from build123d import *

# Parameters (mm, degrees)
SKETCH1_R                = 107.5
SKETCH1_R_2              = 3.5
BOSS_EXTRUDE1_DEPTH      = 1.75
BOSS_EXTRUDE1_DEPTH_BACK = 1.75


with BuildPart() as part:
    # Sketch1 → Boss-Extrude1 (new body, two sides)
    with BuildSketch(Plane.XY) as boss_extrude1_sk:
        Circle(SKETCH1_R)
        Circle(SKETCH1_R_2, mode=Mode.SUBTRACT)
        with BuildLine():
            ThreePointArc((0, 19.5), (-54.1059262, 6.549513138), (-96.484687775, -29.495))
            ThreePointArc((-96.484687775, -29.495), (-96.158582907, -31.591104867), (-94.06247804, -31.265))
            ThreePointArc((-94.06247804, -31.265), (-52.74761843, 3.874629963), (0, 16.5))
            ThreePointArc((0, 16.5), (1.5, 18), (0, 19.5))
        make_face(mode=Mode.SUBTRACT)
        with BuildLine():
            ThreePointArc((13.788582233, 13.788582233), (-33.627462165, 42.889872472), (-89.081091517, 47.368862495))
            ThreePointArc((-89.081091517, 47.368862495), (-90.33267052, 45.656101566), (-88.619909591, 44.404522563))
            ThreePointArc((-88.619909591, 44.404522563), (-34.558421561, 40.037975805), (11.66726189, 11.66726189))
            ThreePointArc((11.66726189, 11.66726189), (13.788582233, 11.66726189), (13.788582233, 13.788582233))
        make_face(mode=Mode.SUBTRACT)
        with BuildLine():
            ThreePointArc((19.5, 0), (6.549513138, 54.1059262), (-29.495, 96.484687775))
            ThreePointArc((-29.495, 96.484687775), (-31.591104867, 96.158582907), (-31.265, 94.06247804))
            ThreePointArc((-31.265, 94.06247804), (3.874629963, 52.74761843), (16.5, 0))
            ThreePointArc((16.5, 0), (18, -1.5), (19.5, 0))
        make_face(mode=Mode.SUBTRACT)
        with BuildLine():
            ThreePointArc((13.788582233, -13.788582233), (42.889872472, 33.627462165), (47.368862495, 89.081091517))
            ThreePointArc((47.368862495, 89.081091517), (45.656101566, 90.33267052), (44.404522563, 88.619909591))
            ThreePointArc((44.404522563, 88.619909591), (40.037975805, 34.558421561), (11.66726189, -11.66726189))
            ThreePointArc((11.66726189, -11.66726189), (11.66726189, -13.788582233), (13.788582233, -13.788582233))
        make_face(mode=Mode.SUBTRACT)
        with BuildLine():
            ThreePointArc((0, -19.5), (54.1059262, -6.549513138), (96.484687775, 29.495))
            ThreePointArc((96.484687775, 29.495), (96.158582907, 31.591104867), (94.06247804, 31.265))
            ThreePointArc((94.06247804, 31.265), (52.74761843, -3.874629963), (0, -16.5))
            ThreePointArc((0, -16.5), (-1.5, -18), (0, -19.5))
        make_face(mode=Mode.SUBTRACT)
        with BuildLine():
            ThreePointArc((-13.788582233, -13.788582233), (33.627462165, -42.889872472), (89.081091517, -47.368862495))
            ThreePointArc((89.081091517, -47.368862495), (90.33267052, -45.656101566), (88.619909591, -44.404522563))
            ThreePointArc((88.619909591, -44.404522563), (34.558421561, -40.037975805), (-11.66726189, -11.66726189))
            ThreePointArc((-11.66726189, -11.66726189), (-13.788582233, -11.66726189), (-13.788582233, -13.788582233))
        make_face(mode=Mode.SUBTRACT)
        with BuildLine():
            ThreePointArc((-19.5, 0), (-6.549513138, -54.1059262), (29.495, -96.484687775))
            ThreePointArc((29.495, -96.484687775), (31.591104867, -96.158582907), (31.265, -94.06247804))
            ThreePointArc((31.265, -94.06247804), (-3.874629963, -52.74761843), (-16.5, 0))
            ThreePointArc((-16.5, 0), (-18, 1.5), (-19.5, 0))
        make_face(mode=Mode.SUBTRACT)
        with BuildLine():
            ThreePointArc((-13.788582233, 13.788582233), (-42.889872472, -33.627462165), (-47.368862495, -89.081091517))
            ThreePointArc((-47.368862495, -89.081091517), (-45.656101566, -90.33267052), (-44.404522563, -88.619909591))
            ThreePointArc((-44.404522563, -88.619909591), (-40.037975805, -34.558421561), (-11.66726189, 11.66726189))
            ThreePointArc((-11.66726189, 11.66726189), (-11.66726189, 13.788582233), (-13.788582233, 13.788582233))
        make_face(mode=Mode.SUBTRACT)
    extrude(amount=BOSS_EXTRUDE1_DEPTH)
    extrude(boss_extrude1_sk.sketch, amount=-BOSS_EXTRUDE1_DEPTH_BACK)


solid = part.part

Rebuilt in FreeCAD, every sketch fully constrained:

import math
import FreeCAD as App
import Part
import Sketcher
Q = App.Units.Quantity

doc = App.newDocument("Part")
body = doc.addObject("PartDesign::Body", "Body")

# Sketch on XY plane
sketch1 = doc.addObject("Sketcher::SketchObject", "Sketch")
body.addObject(sketch1)
sketch1.AttachmentSupport = (doc.XY_Plane, [""])
sketch1.MapMode = "FlatFace"
sketch1.addGeometry([
    Part.Circle(App.Vector(0, 0, 0), App.Vector(0, 0, 1), 107.5),  # 0
    Part.ArcOfCircle(Part.Circle(App.Vector(70.7, -70.7, 0), App.Vector(0, 0, 1), 119.5), math.radians(135), math.radians(189)),  # 1
    Part.ArcOfCircle(Part.Circle(App.Vector(-12.7, 12.7, 0), App.Vector(0, 0, 1), 1.5), math.radians(-45), math.radians(135)),  # 2
    Part.ArcOfCircle(Part.Circle(App.Vector(70.7, -70.7, 0), App.Vector(0, 0, 1), 116.5), math.radians(135), math.radians(189)),  # 3
    Part.ArcOfCircle(Part.Circle(App.Vector(-45.9, -88.9, 0), App.Vector(0, 0, 1), 1.5), math.radians(-171), math.radians(9)),  # 4
    Part.ArcOfCircle(Part.Circle(App.Vector(0, -100, 0), App.Vector(0, 0, 1), 119.5), math.radians(90), math.radians(144)),  # 5
    Part.ArcOfCircle(Part.Circle(App.Vector(0, 18, 0), App.Vector(0, 0, 1), 1.5), math.radians(-90), math.radians(90)),  # 6
    Part.ArcOfCircle(Part.Circle(App.Vector(0, -100, 0), App.Vector(0, 0, 1), 116.5), math.radians(90), math.radians(144)),  # 7
    Part.ArcOfCircle(Part.Circle(App.Vector(-95.3, -30.4, 0), App.Vector(0, 0, 1), 1.5), math.radians(144), math.radians(324)),  # 8
    Part.ArcOfCircle(Part.Circle(App.Vector(100, 0, 0), App.Vector(0, 0, 1), 119.5), math.radians(-180), math.radians(-126)),  # 9
    Part.ArcOfCircle(Part.Circle(App.Vector(-18, 0, 0), App.Vector(0, 0, 1), 1.5), math.radians(0), math.radians(180)),  # 10
    Part.ArcOfCircle(Part.Circle(App.Vector(100, 0, 0), App.Vector(0, 0, 1), 116.5), math.radians(180), math.radians(234)),  # 11
    Part.ArcOfCircle(Part.Circle(App.Vector(30.4, -95.3, 0), App.Vector(0, 0, 1), 1.5), math.radians(-126), math.radians(54)),  # 12
    Part.ArcOfCircle(Part.Circle(App.Vector(70.7, 70.7, 0), App.Vector(0, 0, 1), 119.5), math.radians(-135), math.radians(-81)),  # 13
    Part.ArcOfCircle(Part.Circle(App.Vector(-12.7, -12.7, 0), App.Vector(0, 0, 1), 1.5), math.radians(45), math.radians(225)),  # 14
    Part.ArcOfCircle(Part.Circle(App.Vector(70.7, 70.7, 0), App.Vector(0, 0, 1), 116.5), math.radians(-135), math.radians(-81)),  # 15
    Part.ArcOfCircle(Part.Circle(App.Vector(88.9, -45.9, 0), App.Vector(0, 0, 1), 1.5), math.radians(-81), math.radians(99)),  # 16
    Part.ArcOfCircle(Part.Circle(App.Vector(-70.7, -70.7, 0), App.Vector(0, 0, 1), 119.5), math.radians(45), math.radians(99)),  # 17
    Part.ArcOfCircle(Part.Circle(App.Vector(12.7, 12.7, 0), App.Vector(0, 0, 1), 1.5), math.radians(-135), math.radians(45)),  # 18
    Part.ArcOfCircle(Part.Circle(App.Vector(-70.7, -70.7, 0), App.Vector(0, 0, 1), 116.5), math.radians(45), math.radians(99)),  # 19
    Part.ArcOfCircle(Part.Circle(App.Vector(-88.9, 45.9, 0), App.Vector(0, 0, 1), 1.5), math.radians(99), math.radians(279)),  # 20
    Part.ArcOfCircle(Part.Circle(App.Vector(-100, 0, 0), App.Vector(0, 0, 1), 119.5), math.radians(0), math.radians(54)),  # 21
    Part.ArcOfCircle(Part.Circle(App.Vector(18, 0, 0), App.Vector(0, 0, 1), 1.5), math.radians(180), math.radians(360)),  # 22
    Part.ArcOfCircle(Part.Circle(App.Vector(-100, 0, 0), App.Vector(0, 0, 1), 116.5), math.radians(0), math.radians(54)),  # 23
    Part.ArcOfCircle(Part.Circle(App.Vector(-30.4, 95.3, 0), App.Vector(0, 0, 1), 1.5), math.radians(54), math.radians(234)),  # 24
    Part.Circle(App.Vector(0, 0, 0), App.Vector(0, 0, 1), 3.5),  # 25
    Part.ArcOfCircle(Part.Circle(App.Vector(0, 100, 0), App.Vector(0, 0, 1), 119.5), math.radians(-90), math.radians(-36)),  # 26
    Part.ArcOfCircle(Part.Circle(App.Vector(0, -18, 0), App.Vector(0, 0, 1), 1.5), math.radians(90), math.radians(270)),  # 27
    Part.ArcOfCircle(Part.Circle(App.Vector(0, 100, 0), App.Vector(0, 0, 1), 116.5), math.radians(-90), math.radians(-36)),  # 28
    Part.ArcOfCircle(Part.Circle(App.Vector(95.3, 30.4, 0), App.Vector(0, 0, 1), 1.5), math.radians(-36), math.radians(144)),  # 29
    Part.ArcOfCircle(Part.Circle(App.Vector(-70.7, 70.7, 0), App.Vector(0, 0, 1), 119.5), math.radians(-45), math.radians(9)),  # 30
    Part.ArcOfCircle(Part.Circle(App.Vector(12.7, -12.7, 0), App.Vector(0, 0, 1), 1.5), math.radians(135), math.radians(315)),  # 31
    Part.ArcOfCircle(Part.Circle(App.Vector(-70.7, 70.7, 0), App.Vector(0, 0, 1), 116.5), math.radians(-45), math.radians(9)),  # 32
    Part.ArcOfCircle(Part.Circle(App.Vector(45.9, 88.9, 0), App.Vector(0, 0, 1), 1.5), math.radians(9), math.radians(189)),  # 33
], False)
sketch1.addConstraint([
    Sketcher.Constraint("Tangent", 1, 1, 2, 2),
    Sketcher.Constraint("Tangent", 2, 1, 3, 1),
    Sketcher.Constraint("Tangent", 3, 2, 4, 2),
    Sketcher.Constraint("Tangent", 4, 1, 1, 2),
    Sketcher.Constraint("Tangent", 5, 1, 6, 2),
    Sketcher.Constraint("Tangent", 6, 1, 7, 1),
    Sketcher.Constraint("Tangent", 7, 2, 8, 2),
    Sketcher.Constraint("Tangent", 8, 1, 5, 2),
    Sketcher.Constraint("Tangent", 9, 1, 10, 2),
    Sketcher.Constraint("Tangent", 10, 1, 11, 1),
    Sketcher.Constraint("Tangent", 11, 2, 12, 2),
    Sketcher.Constraint("Tangent", 12, 1, 9, 2),
    Sketcher.Constraint("Tangent", 13, 1, 14, 2),
    Sketcher.Constraint("Tangent", 14, 1, 15, 1),
    Sketcher.Constraint("Tangent", 15, 2, 16, 2),
    Sketcher.Constraint("Tangent", 16, 1, 13, 2),
    Sketcher.Constraint("Tangent", 17, 1, 18, 2),
    Sketcher.Constraint("Tangent", 18, 1, 19, 1),
    Sketcher.Constraint("Tangent", 19, 2, 20, 2),
    Sketcher.Constraint("Tangent", 20, 1, 17, 2),
    Sketcher.Constraint("Tangent", 21, 1, 22, 2),
    Sketcher.Constraint("Tangent", 22, 1, 23, 1),
    Sketcher.Constraint("Tangent", 23, 2, 24, 2),
    Sketcher.Constraint("Tangent", 24, 1, 21, 2),
    Sketcher.Constraint("Tangent", 26, 1, 27, 2),
    Sketcher.Constraint("Tangent", 27, 1, 28, 1),
    Sketcher.Constraint("Tangent", 28, 2, 29, 2),
    Sketcher.Constraint("Tangent", 29, 1, 26, 2),
    Sketcher.Constraint("Tangent", 30, 1, 31, 2),
    Sketcher.Constraint("Tangent", 31, 1, 32, 1),
    Sketcher.Constraint("Tangent", 32, 2, 33, 2),
    Sketcher.Constraint("Tangent", 33, 1, 30, 2),
    Sketcher.Constraint("Coincident", 0, 3, -1, 1),
    Sketcher.Constraint("Coincident", 25, 3, -1, 1),
    Sketcher.Constraint("Coincident", 3, 3, 1, 3),
    Sketcher.Constraint("Coincident", 7, 3, 5, 3),
    Sketcher.Constraint("Coincident", 11, 3, 9, 3),
    Sketcher.Constraint("Coincident", 15, 3, 13, 3),
    Sketcher.Constraint("Coincident", 19, 3, 17, 3),
    Sketcher.Constraint("Coincident", 23, 3, 21, 3),
    Sketcher.Constraint("Coincident", 28, 3, 26, 3),
    Sketcher.Constraint("Coincident", 32, 3, 30, 3),
    Sketcher.Constraint("Equal", 1, 5),
    Sketcher.Constraint("Equal", 4, 6),
    Sketcher.Constraint("Equal", 5, 9),
    Sketcher.Constraint("Equal", 8, 10),
    Sketcher.Constraint("Equal", 9, 13),
    Sketcher.Constraint("Equal", 12, 14),
    Sketcher.Constraint("Equal", 13, 17),
    Sketcher.Constraint("Equal", 16, 18),
    Sketcher.Constraint("Equal", 17, 21),
    Sketcher.Constraint("Equal", 20, 22),
    Sketcher.Constraint("Equal", 21, 26),
    Sketcher.Constraint("Equal", 24, 27),
    Sketcher.Constraint("Equal", 26, 30),
    Sketcher.Constraint("Equal", 29, 31),
    Sketcher.Constraint("Symmetric", 13, 3, 17, 3, -1, 1),
    Sketcher.Constraint("Symmetric", 9, 3, 21, 3, -1, 1),
    Sketcher.Constraint("Symmetric", 5, 3, 26, 3, -1, 1),
    Sketcher.Constraint("Symmetric", 1, 3, 30, 3, -1, 1),
    Sketcher.Constraint("Symmetric", 1, 3, 17, 3, -2),
    Sketcher.Constraint("PointOnObject", 5, 3, -2),
    Sketcher.Constraint("PointOnObject", 6, 3, -2),
    Sketcher.Constraint("PointOnObject", 9, 3, -1),
    Sketcher.Constraint("PointOnObject", 10, 3, -1),
    Sketcher.Constraint("PointOnObject", 22, 3, -1),
    Sketcher.Constraint("PointOnObject", 27, 3, -2),
    Sketcher.Constraint("Horizontal", 2, 3, 18, 3),
    Sketcher.Constraint("Horizontal", 14, 3, 31, 3),
    Sketcher.Constraint("Vertical", 2, 3, 14, 3),
    Sketcher.Constraint("Diameter", 0, Q("215 mm")),
    Sketcher.Constraint("Diameter", 25, Q("7 mm")),
    Sketcher.Constraint("Radius", 1, Q("119.5 mm")),
    Sketcher.Constraint("Radius", 2, Q("1.5 mm")),
    Sketcher.Constraint("DistanceY", 5, 3, -1, 1, Q("100 mm")),
    Sketcher.Constraint("DistanceX", -1, 1, 9, 3, Q("100 mm")),
    Sketcher.Constraint("DistanceY", 8, 3, -1, 1, Q("30.38 mm")),
    Sketcher.Constraint("DistanceX", -1, 1, 12, 3, Q("30.38 mm")),
    Sketcher.Constraint("DistanceX", 24, 3, -1, 1, Q("30.38 mm")),
    Sketcher.Constraint("DistanceY", -1, 1, 29, 3, Q("30.38 mm")),
    Sketcher.Constraint("DistanceY", 4, 3, -1, 1, Q("88.850501 mm")),
    Sketcher.Constraint("DistanceX", -1, 1, 16, 3, Q("88.850501 mm")),
    Sketcher.Constraint("DistanceX", 20, 3, -1, 1, Q("88.850501 mm")),
    Sketcher.Constraint("DistanceY", -1, 1, 33, 3, Q("88.850501 mm")),
    Sketcher.Constraint("DistanceX", -1, 1, 1, 3, Q("70.710678 mm")),
    Sketcher.Constraint("DistanceY", 1, 3, -1, 1, Q("70.710678 mm")),
    Sketcher.Constraint("DistanceX", 2, 1, -1, 1, Q("11.667262 mm")),
])
pad1 = doc.addObject("PartDesign::Pad", "Pad")
body.addObject(pad1)
pad1.Profile = sketch1
pad1.Type = "TwoLengths"
pad1.Length = 1.75
pad1.Length2 = 1.75

doc.recompute()
